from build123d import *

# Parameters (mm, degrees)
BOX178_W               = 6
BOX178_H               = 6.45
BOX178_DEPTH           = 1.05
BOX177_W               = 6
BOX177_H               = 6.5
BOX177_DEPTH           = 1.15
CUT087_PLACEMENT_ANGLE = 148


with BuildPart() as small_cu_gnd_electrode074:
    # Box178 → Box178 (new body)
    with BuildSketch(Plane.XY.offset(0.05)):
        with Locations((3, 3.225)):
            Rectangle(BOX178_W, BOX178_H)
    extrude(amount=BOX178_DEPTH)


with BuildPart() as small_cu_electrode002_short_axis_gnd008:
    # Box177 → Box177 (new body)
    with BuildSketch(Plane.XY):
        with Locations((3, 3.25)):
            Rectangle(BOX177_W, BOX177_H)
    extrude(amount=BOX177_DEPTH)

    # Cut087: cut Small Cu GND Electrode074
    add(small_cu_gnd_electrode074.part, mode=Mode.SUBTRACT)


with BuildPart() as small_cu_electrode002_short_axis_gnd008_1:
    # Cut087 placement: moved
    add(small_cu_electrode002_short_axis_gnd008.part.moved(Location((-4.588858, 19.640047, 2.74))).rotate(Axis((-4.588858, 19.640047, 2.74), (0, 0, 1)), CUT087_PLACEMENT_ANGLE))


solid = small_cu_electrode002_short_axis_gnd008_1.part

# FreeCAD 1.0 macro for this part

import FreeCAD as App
import Part
import Sketcher


def add_polygon(sketch, points):
    """Adds a closed chain of lines whose ends are joined by coincident constraints."""
    first, n = sketch.GeometryCount, len(points)
    for a, b in zip(points, points[1:] + points[:1]):
        sketch.addGeometry(Part.LineSegment(App.Vector(*a, 0), App.Vector(*b, 0)), False)
    for i in range(n):
        sketch.addConstraint(Sketcher.Constraint("Coincident", first + i, 2, first + (i + 1) % n, 1))

doc = App.newDocument("Part")
body = doc.addObject("PartDesign::Body", "Body")

# Sketch on XY plane
sketch1 = body.newObject("Sketcher::SketchObject", "Sketch")
sketch1.AttachmentSupport = (doc.getObject("XY_Plane"), [""])
sketch1.MapMode = "FlatFace"
sketch1.AttachmentOffset = App.Placement(App.Vector(0, 0, 0.05), App.Rotation())
add_polygon(sketch1, [(0, 6.45), (0, 0), (6, 0), (6, 6.45)])  # lines 0-3
sketch1.addConstraint(Sketcher.Constraint("Vertical", 0))
sketch1.addConstraint(Sketcher.Constraint("Horizontal", 1))
sketch1.addConstraint(Sketcher.Constraint("Vertical", 2))
sketch1.addConstraint(Sketcher.Constraint("Horizontal", 3))
sketch1.addConstraint(Sketcher.Constraint("Coincident", 0, 2, -1, 1))
sketch1.addConstraint(Sketcher.Constraint("DistanceX", 1, 1, 1, 2, 6.0))
sketch1.addConstraint(Sketcher.Constraint("DistanceY", 0, 2, 0, 1, 6.45))
pad1 = body.newObject("PartDesign::Pad", "Pad")
pad1.Profile = sketch1
pad1.Length = 1.05
body2 = doc.addObject("PartDesign::Body", "Body001")

# Sketch on XY plane
sketch2 = body2.newObject("Sketcher::SketchObject", "Sketch001")
sketch2.AttachmentSupport = (doc.getObject("XY_Plane001"), [""])
sketch2.MapMode = "FlatFace"
add_polygon(sketch2, [(0, 6.5), (0, 0), (6, 0), (6, 6.5)])  # lines 0-3
sketch2.addConstraint(Sketcher.Constraint("Vertical", 0))
sketch2.addConstraint(Sketcher.Constraint("Horizontal", 1))
sketch2.addConstraint(Sketcher.Constraint("Vertical", 2))
sketch2.addConstraint(Sketcher.Constraint("Horizontal", 3))
sketch2.addConstraint(Sketcher.Constraint("Coincident", 0, 2, -1, 1))
sketch2.addConstraint(Sketcher.Constraint("DistanceX", 1, 1, 1, 2, 6.0))
sketch2.addConstraint(Sketcher.Constraint("DistanceY", 0, 2, 0, 1, 6.5))
pad2 = body2.newObject("PartDesign::Pad", "Pad001")
pad2.Profile = sketch2
pad2.Length = 1.15
doc.recompute()

boolean = body2.newObject("PartDesign::Boolean", "Boolean")
boolean.Type = "Cut"
boolean.addObjects([body])
body3 = doc.addObject("PartDesign::Body", "Body002")
doc.recompute()

body2.Placement = App.Placement(App.Vector(-4.588858, 19.640047, 2.74), App.Rotation(App.Vector(0, 0, 1), 148))
boolean2 = body3.newObject("PartDesign::Boolean", "Boolean001")
boolean2.Type = "Fuse"
boolean2.addObjects([body2])

doc.recompute()
